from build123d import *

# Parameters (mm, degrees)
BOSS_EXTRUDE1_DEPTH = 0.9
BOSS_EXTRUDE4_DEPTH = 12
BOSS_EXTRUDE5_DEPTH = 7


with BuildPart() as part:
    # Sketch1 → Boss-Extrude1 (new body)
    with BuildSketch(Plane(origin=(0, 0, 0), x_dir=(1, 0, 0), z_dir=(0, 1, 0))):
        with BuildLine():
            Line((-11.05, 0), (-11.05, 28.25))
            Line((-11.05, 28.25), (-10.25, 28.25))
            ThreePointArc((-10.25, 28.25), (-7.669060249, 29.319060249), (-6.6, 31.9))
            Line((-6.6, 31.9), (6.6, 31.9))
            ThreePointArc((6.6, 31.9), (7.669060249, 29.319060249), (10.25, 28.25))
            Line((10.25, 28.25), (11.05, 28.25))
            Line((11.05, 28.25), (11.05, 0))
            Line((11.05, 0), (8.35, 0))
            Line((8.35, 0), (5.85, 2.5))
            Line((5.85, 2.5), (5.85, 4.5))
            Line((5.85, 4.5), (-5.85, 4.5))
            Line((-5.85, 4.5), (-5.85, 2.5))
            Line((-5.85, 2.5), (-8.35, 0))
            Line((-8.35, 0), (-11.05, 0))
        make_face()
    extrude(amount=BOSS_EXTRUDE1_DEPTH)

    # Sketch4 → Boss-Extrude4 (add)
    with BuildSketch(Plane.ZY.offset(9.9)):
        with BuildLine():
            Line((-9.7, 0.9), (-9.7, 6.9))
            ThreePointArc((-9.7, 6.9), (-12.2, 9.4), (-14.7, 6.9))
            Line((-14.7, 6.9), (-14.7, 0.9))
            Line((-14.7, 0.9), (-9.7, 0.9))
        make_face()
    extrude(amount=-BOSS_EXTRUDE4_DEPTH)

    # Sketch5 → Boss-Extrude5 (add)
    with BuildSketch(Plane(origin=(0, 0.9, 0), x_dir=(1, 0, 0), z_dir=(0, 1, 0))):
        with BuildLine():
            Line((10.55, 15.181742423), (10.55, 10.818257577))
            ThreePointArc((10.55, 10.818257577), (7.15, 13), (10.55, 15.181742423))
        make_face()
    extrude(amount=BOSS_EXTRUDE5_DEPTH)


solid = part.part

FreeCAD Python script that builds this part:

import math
import FreeCAD as App
import Part
import Sketcher

V = App.Vector

doc = App.newDocument("Part")
params = doc.addObject("Spreadsheet::Sheet", "Params")
for row, (alias, value) in enumerate([
    ("sketch1_height", "2 mm"),
    ("sketch1_radius", "3.65 mm"),
    ("sketch1_width", "2.7 mm"),
    ("sketch1_width2", "11.7 mm"),
    ("sketch1_width3", "0.8 mm"),
    ("pad1_length", "0.9 mm"),
    ("sketch2_radius", "2.5 mm"),
    ("sketch2_width", "6 mm"),
    ("pad2_length", "12 mm"),
    ("sketch3_radius", "2.4 mm"),
    ("pad3_length", "7 mm"),
], start=1):
    params.set(f"A{row}", alias)
    params.set(f"B{row}", "=" + value)
    params.setAlias(f"B{row}", alias)

body = doc.addObject("PartDesign::Body", "Body")

sketch1 = body.newObject("Sketcher::SketchObject", "Sketch")
sketch1.AttachmentSupport = (doc.getObject("XZ_Plane"), [""])
sketch1.MapMode = "FlatFace"
sketch1.addGeometry([
    Part.LineSegment(V(-11.1, -28.2, 0), V(-11.1, 0, 0)),
    Part.LineSegment(V(-11.1, 0, 0), V(-8.3, 0, 0)),
    Part.LineSegment(V(-8.3, 0, 0), V(-5.8, -2.5, 0)),
    Part.LineSegment(V(-5.8, -2.5, 0), V(-5.8, -4.5, 0)),
    Part.LineSegment(V(-5.8, -4.5, 0), V(5.8, -4.5, 0)),
    Part.LineSegment(V(5.8, -4.5, 0), V(5.8, -2.5, 0)),
    Part.LineSegment(V(5.8, -2.5, 0), V(8.3, 0, 0)),
    Part.LineSegment(V(8.3, 0, 0), V(11.1, 0, 0)),
    Part.LineSegment(V(11.1, 0, 0), V(11.1, -28.2, 0)),
    Part.LineSegment(V(11.1, -28.2, 0), V(10.2, -28.2, 0)),
    Part.ArcOfCircle(Part.Circle(V(10.3, -31.9, 0), V(0, 0, 1), 3.7), math.radians(90), math.radians(180)),
    Part.LineSegment(V(6.6, -31.9, 0), V(-6.6, -31.9, 0)),
    Part.ArcOfCircle(Part.Circle(V(-10.3, -31.9, 0), V(0, 0, 1), 3.7), math.radians(0), math.radians(90)),
    Part.LineSegment(V(-10.2, -28.2, 0), V(-11.1, -28.2, 0)),
], False)
sketch1.addConstraint([
    Sketcher.Constraint("Coincident", 0, 2, 1, 1),
    Sketcher.Constraint("Coincident", 1, 2, 2, 1),
    Sketcher.Constraint("Coincident", 2, 2, 3, 1),
    Sketcher.Constraint("Coincident", 3, 2, 4, 1),
    Sketcher.Constraint("Coincident", 4, 2, 5, 1),
    Sketcher.Constraint("Coincident", 5, 2, 6, 1),
    Sketcher.Constraint("Coincident", 6, 2, 7, 1),
    Sketcher.Constraint("Coincident", 7, 2, 8, 1),
    Sketcher.Constraint("Coincident", 8, 2, 9, 1),
    Sketcher.Constraint("Tangent", 9, 2, 10, 1),
    Sketcher.Constraint("Coincident", 10, 2, 11, 1),
    Sketcher.Constraint("Coincident", 11, 2, 12, 1),
    Sketcher.Constraint("Tangent", 12, 2, 13, 1),
    Sketcher.Constraint("Coincident", 13, 2, 0, 1),
    Sketcher.Constraint("Vertical", 0),
    Sketcher.Constraint("Horizontal", 1),
    Sketcher.Constraint("Vertical", 3),
    Sketcher.Constraint("Horizontal", 4),
    Sketcher.Constraint("Vertical", 5),
    Sketcher.Constraint("Horizontal", 7),
    Sketcher.Constraint("Vertical", 8),
    Sketcher.Constraint("Horizontal", 9),
    Sketcher.Constraint("Horizontal", 11),
    Sketcher.Constraint("Horizontal", 13),
    Sketcher.Constraint("Equal", 10, 12),
    Sketcher.Constraint("Symmetric", 1, 2, 6, 2, -1, 1),
    Sketcher.Constraint("Symmetric", 10, 3, 12, 3, -2),
    Sketcher.Constraint("Symmetric", 2, 2, 5, 2, -2),
    Sketcher.Constraint("Symmetric", 0, 2, 7, 2, -2),
    Sketcher.Constraint("Perpendicular", 2, 6),
    Sketcher.Constraint("Horizontal", 12, 3, 10, 2),
    Sketcher.Constraint("DistanceY", 3, 2, 3, 1, 2.0),
    Sketcher.Constraint("Radius", 10, 3.65),
    Sketcher.Constraint("DistanceX", 1, 1, 1, 2, 2.7),
    Sketcher.Constraint("DistanceX", 4, 1, 4, 2, 11.7),
    Sketcher.Constraint("DistanceX", 9, 2, 9, 1, 0.8),
    Sketcher.Constraint("DistanceX", 11, 2, 11, 1, 13.2),
    Sketcher.Constraint("DistanceY", 0, 1, 0, 2, 28.25),
])
sketch1.setExpression("Constraints[31]", "Params.sketch1_height")
sketch1.setExpression("Constraints[32]", "Params.sketch1_radius")
sketch1.setExpression("Constraints[33]", "Params.sketch1_width")
sketch1.setExpression("Constraints[34]", "Params.sketch1_width2")
sketch1.setExpression("Constraints[35]", "Params.sketch1_width3")
pad1 = body.newObject("PartDesign::Pad", "Pad")
pad1.Profile = sketch1
pad1.setExpression("Length", "Params.pad1_length")
pad1.Reversed = True

sketch2 = body.newObject("Sketcher::SketchObject", "Sketch001")
sketch2.AttachmentSupport = (doc.getObject("YZ_Plane"), [""])
sketch2.MapMode = "FlatFace"
sketch2.AttachmentOffset = App.Placement(V(0, 0, -9.9), App.Rotation())
sketch2.addGeometry([
    Part.LineSegment(V(0.9, -9.7, 0), V(6.9, -9.7, 0)),
    Part.ArcOfCircle(Part.Circle(V(6.9, -12.2, 0), V(0, 0, 1), 2.5), math.radians(-90), math.radians(90)),
    Part.LineSegment(V(6.9, -14.7, 0), V(0.9, -14.7, 0)),
    Part.LineSegment(V(0.9, -14.7, 0), V(0.9, -9.7, 0)),
], False)
sketch2.addConstraint([
    Sketcher.Constraint("Tangent", 0, 2, 1, 2),
    Sketcher.Constraint("Tangent", 1, 1, 2, 1),
    Sketcher.Constraint("Coincident", 2, 2, 3, 1),
    Sketcher.Constraint("Coincident", 3, 2, 0, 1),
    Sketcher.Constraint("Horizontal", 0),
    Sketcher.Constraint("Horizontal", 2),
    Sketcher.Constraint("Vertical", 3),
    Sketcher.Constraint("Radius", 1, 2.5),
    Sketcher.Constraint("DistanceX", 0, 1, 0, 2, 6.0),
    Sketcher.Constraint("DistanceX", -1, 1, 1, 3, 6.9),
    Sketcher.Constraint("DistanceY", 1, 3, -1, 1, 12.2),
])
sketch2.setExpression("Constraints[7]", "Params.sketch2_radius")
sketch2.setExpression("Constraints[8]", "Params.sketch2_width")
pad2 = body.newObject("PartDesign::Pad", "Pad001")
pad2.Profile = sketch2
pad2.setExpression("Length", "Params.pad2_length")

sketch3 = body.newObject("Sketcher::SketchObject", "Sketch002")
sketch3.AttachmentSupport = (doc.getObject("XZ_Plane"), [""])
sketch3.MapMode = "FlatFace"
sketch3.AttachmentOffset = App.Placement(V(0, 0, -0.9), App.Rotation())
sketch3.addGeometry([
    Part.LineSegment(V(10.6, -10.8, 0), V(10.6, -15.2, 0)),
    Part.ArcOfCircle(Part.Circle(V(9.6, -13, 0), V(0, 0, 1), 2.4), math.radians(65), math.radians(295)),
], False)
sketch3.addConstraint([
    Sketcher.Constraint("Coincident", 0, 1, 1, 1),
    Sketcher.Constraint("Coincident", 1, 2, 0, 2),
    Sketcher.Constraint("Vertical", 0),
    Sketcher.Constraint("Radius", 1, 2.4),
    Sketcher.Constraint("DistanceY", 1, 3, -1, 1, 13.0),
    Sketcher.Constraint("DistanceX", 1, 3, 0, 1, 1.0),
    Sketcher.Constraint("DistanceX", -1, 1, 1, 3, 9.55),
])
sketch3.setExpression("Constraints[3]", "Params.sketch3_radius")
pad3 = body.newObject("PartDesign::Pad", "Pad002")
pad3.Profile = sketch3
pad3.setExpression("Length", "Params.pad3_length")
pad3.Reversed = True

doc.recompute()
